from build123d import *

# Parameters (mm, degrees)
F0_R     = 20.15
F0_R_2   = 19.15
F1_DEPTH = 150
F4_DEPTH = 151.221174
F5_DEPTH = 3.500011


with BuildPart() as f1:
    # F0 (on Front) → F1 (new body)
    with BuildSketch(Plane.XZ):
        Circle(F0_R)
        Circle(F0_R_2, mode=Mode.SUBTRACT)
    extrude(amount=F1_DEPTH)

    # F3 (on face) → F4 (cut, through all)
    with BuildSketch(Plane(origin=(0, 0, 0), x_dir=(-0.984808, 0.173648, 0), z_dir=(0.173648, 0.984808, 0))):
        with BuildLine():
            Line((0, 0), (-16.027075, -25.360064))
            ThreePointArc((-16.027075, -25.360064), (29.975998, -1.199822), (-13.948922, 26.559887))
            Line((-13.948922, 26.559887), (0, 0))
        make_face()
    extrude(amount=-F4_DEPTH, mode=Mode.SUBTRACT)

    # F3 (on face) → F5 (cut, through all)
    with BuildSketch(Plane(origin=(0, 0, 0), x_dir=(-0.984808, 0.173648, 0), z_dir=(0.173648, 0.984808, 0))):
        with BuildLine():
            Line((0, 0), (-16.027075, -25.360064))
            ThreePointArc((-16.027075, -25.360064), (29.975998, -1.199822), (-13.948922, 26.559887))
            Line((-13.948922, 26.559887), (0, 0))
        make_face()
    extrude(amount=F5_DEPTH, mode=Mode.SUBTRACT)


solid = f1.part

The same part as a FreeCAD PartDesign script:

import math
import FreeCAD as App
import Part
import Sketcher

V = App.Vector

doc = App.newDocument("Part")
body = doc.addObject("PartDesign::Body", "Body")

# Sketch on XZ plane
sketch1 = body.newObject("Sketcher::SketchObject", "Sketch")
sketch1.AttachmentSupport = (doc.getObject("XZ_Plane"), [""])
sketch1.MapMode = "FlatFace"
sketch1.addGeometry([
    Part.Circle(V(0, 0, 0), V(0, 0, 1), 20),
    Part.Circle(V(0, 0, 0), V(0, 0, 1), 19),
], False)
sketch1.addConstraint([
    Sketcher.Constraint("Coincident", 0, 3, -1, 1),
    Sketcher.Constraint("Coincident", 1, 3, -1, 1),
    Sketcher.Constraint("Diameter", 0, 40.3),
    Sketcher.Constraint("Diameter", 1, 38.3),
])
pad1 = body.newObject("PartDesign::Pad", "Pad")
pad1.Profile = sketch1
pad1.Length = 150

# Sketch on an angled plane
sketch2 = body.newObject("Sketcher::SketchObject", "Sketch001")
sketch2.Placement = App.Placement(V(0, 0, 0), App.Rotation(V(-0.984807791, 0.173647963, 0), V(0, 0, 1), V(0.173647963, 0.984807791, 0), "ZXY"))
sketch2.addGeometry([
    Part.LineSegment(V(0, 0, 0), V(-16, -25, 0)),
    Part.ArcOfCircle(Part.Circle(V(0, 0, 0), V(0, 0, 1), 30), math.radians(-122), math.radians(118)),
    Part.LineSegment(V(-14, 27, 0), V(0, 0, 0)),
], False)
sketch2.addConstraint([
    Sketcher.Constraint("Coincident", 0, 2, 1, 1),
    Sketcher.Constraint("Coincident", 1, 2, 2, 1),
    Sketcher.Constraint("Coincident", 2, 2, 0, 1),
    Sketcher.Constraint("Coincident", 1, 3, -1, 1),
    Sketcher.Constraint("Coincident", 2, 2, -1, 1),
    Sketcher.Constraint("Radius", 1, 30.0),
    Sketcher.Constraint("DistanceX", 1, 2, -1, 1, 13.948922),
    Sketcher.Constraint("DistanceY", 0, 2, 1, 2, 51.919951),
])
pocket1 = body.newObject("PartDesign::Pocket", "Pocket")
pocket1.Profile = sketch2
pocket1.Type = "ThroughAll"

# Sketch on an angled plane
sketch3 = body.newObject("Sketcher::SketchObject", "Sketch002")
sketch3.Placement = App.Placement(V(0, 0, 0), App.Rotation(V(-0.984807791, 0.173647963, 0), V(0, 0, 1), V(0.173647963, 0.984807791, 0), "ZXY"))
sketch3.addGeometry([
    Part.LineSegment(V(0, 0, 0), V(-16, -25, 0)),
    Part.ArcOfCircle(Part.Circle(V(0, 0, 0), V(0, 0, 1), 30), math.radians(-122), math.radians(118)),
    Part.LineSegment(V(-14, 27, 0), V(0, 0, 0)),
], False)
sketch3.addConstraint([
    Sketcher.Constraint("Coincident", 0, 2, 1, 1),
    Sketcher.Constraint("Coincident", 1, 2, 2, 1),
    Sketcher.Constraint("Coincident", 2, 2, 0, 1),
    Sketcher.Constraint("Coincident", 1, 3, -1, 1),
    Sketcher.Constraint("Coincident", 2, 2, -1, 1),
    Sketcher.Constraint("Radius", 1, 30.0),
    Sketcher.Constraint("DistanceX", 1, 2, -1, 1, 13.948922),
    Sketcher.Constraint("DistanceY", 0, 2, 1, 2, 51.919951),
])
pocket2 = body.newObject("PartDesign::Pocket", "Pocket001")
pocket2.Profile = sketch3
pocket2.Type = "ThroughAll"
pocket2.Reversed = True

doc.recompute()
